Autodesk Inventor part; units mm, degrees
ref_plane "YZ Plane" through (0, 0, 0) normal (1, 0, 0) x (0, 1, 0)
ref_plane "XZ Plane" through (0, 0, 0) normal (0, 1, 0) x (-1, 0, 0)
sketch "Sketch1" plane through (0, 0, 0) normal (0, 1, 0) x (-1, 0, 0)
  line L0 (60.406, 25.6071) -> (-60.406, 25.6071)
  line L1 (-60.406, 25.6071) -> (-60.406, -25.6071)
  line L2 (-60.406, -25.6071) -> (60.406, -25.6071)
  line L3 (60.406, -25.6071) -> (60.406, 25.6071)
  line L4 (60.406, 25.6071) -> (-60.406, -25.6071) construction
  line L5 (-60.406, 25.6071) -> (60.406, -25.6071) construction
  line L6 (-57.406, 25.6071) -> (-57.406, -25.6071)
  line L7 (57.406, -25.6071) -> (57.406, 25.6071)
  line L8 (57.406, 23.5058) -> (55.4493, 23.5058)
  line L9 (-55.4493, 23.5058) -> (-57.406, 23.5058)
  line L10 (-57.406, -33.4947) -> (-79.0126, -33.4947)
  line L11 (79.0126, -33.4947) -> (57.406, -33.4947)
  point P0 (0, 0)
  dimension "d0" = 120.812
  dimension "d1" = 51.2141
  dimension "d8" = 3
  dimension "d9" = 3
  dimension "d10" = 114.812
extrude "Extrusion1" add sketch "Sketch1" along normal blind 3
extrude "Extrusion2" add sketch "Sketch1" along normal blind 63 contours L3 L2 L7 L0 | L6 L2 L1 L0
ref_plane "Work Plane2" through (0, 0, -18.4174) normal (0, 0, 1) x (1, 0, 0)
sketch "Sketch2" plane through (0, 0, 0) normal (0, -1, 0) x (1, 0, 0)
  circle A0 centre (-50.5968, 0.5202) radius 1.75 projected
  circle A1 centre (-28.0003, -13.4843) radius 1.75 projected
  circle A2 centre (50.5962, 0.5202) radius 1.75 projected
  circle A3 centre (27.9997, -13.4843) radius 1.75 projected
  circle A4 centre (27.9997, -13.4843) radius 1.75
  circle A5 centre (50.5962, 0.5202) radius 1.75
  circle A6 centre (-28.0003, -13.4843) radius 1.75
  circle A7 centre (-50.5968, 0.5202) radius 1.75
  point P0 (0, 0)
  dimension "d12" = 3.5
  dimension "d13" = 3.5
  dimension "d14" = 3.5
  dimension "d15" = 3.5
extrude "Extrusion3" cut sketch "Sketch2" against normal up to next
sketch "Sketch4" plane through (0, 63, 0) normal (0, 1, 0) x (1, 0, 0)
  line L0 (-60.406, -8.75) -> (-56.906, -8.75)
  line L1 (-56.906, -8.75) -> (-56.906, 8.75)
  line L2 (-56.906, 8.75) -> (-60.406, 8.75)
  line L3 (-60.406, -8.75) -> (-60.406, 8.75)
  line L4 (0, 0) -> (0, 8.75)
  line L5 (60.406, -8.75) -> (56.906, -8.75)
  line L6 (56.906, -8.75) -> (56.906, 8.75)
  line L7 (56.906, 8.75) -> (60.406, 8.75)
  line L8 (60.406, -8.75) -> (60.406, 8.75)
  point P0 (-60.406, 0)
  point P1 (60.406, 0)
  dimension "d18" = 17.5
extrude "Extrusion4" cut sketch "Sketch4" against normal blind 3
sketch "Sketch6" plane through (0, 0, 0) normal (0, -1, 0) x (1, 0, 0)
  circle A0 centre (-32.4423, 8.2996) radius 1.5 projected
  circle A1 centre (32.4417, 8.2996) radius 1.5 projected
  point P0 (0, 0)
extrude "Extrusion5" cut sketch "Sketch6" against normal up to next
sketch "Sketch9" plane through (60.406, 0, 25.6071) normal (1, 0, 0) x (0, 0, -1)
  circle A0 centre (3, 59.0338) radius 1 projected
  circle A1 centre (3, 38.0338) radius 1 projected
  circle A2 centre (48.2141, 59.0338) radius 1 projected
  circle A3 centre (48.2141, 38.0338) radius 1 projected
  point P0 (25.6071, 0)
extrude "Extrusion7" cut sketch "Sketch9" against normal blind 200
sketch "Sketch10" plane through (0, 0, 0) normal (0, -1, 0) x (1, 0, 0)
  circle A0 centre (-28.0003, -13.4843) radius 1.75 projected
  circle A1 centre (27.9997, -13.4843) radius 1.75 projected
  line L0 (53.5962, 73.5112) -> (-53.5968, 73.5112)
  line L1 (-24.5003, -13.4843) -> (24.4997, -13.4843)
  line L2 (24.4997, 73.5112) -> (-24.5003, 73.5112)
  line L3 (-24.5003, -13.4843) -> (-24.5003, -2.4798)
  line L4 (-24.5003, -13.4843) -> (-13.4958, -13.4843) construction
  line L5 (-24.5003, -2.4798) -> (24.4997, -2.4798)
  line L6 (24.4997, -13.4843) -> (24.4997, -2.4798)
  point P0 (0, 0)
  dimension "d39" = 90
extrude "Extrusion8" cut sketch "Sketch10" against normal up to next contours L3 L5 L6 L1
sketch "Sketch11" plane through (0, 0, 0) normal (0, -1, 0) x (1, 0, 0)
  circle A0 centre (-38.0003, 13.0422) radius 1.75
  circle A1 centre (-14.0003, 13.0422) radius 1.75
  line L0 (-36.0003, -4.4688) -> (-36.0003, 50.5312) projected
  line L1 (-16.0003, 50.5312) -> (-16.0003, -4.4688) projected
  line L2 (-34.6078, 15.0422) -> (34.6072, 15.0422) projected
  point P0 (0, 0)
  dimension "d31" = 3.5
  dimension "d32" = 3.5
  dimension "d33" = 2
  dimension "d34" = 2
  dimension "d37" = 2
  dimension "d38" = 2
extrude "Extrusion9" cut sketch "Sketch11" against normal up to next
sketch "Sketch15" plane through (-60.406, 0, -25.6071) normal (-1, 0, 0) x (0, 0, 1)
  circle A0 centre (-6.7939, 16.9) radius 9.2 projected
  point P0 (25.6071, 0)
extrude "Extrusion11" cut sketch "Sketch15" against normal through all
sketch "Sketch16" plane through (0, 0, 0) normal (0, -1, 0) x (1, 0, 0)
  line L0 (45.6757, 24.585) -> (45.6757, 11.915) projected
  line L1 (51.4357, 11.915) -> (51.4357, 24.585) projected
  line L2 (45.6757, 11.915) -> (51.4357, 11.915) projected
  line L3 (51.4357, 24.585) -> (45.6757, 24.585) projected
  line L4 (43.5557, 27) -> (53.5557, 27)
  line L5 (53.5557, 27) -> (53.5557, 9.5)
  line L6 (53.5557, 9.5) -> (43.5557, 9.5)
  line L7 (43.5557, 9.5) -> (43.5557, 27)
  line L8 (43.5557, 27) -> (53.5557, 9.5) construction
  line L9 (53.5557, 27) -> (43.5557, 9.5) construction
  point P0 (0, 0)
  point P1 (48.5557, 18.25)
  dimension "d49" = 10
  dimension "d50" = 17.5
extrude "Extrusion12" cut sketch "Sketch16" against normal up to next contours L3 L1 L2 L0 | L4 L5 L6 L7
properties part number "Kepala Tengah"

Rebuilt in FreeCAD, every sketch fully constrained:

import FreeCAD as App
import Part
import Sketcher

V = App.Vector
Q = App.Units.Quantity


def add_polygon(sketch, points):
    """Adds a closed chain of lines whose ends are joined by coincident constraints."""
    first, n = sketch.GeometryCount, len(points)
    for a, b in zip(points, points[1:] + points[:1]):
        sketch.addGeometry(Part.LineSegment(App.Vector(*a, 0), App.Vector(*b, 0)), False)
    for i in range(n):
        sketch.addConstraint(Sketcher.Constraint("Coincident", first + i, 2, first + (i + 1) % n, 1))

doc = App.newDocument("Part")
params = doc.addObject("Spreadsheet::Sheet", "Params")
for row, (alias, value) in enumerate([
    ("pad1_length", "3 mm"),
    ("sketch2_width", "3 mm"),
    ("pad2_length", "63 mm"),
    ("sketch3_diameter", "3.5 mm"),
    ("sketch4_height", "17.5 mm"),
    ("sketch4_width", "3.5 mm"),
    ("pocket2_length", "3 mm"),
    ("sketch5_diameter", "3 mm"),
    ("pocket3_length", "3 mm"),
    ("sketch6_diameter", "2 mm"),
    ("pocket4_length", "200 mm"),
    ("sketch7_width", "49 mm"),
    ("sketch8_diameter", "3.5 mm"),
    ("sketch9_diameter", "18.4 mm"),
    ("sketch10_width", "10 mm"),
    ("sketch10_height", "17.5 mm"),
], start=1):
    params.set(f"A{row}", alias)
    params.set(f"B{row}", "=" + value)
    params.setAlias(f"B{row}", alias)

body = doc.addObject("PartDesign::Body", "Body")

sketch1 = body.newObject("Sketcher::SketchObject", "Sketch")
sketch1.AttachmentSupport = (doc.getObject("XZ_Plane"), [""])
sketch1.MapMode = "FlatFace"
add_polygon(sketch1, [(-60, -26), (-60, 26), (60, 26), (60, -26)])
sketch1.addConstraint([
    Sketcher.Constraint("Vertical", 0),
    Sketcher.Constraint("Horizontal", 1),
    Sketcher.Constraint("Vertical", 2),
    Sketcher.Constraint("Horizontal", 3),
    Sketcher.Constraint("Symmetric", 0, 2, 2, 2, -1, 1),
    Sketcher.Constraint("DistanceX", 1, 1, 1, 2, Q("120.812 mm")),
    Sketcher.Constraint("DistanceY", 0, 1, 0, 2, Q("51.2142 mm")),
])
pad1 = body.newObject("PartDesign::Pad", "Pad")
pad1.Profile = sketch1
pad1.setExpression("Length", "Params.pad1_length")
pad1.Reversed = True

sketch2 = body.newObject("Sketcher::SketchObject", "Sketch001")
sketch2.AttachmentSupport = (doc.getObject("XZ_Plane"), [""])
sketch2.MapMode = "FlatFace"
add_polygon(sketch2, [(-60.4, -25.6), (-60.4, 25.6), (-57.4, 25.6), (-57.4, -25.6)])
add_polygon(sketch2, [(57.4, -25.6), (57.4, 25.6), (60.4, 25.6), (60.4, -25.6)])
sketch2.addConstraint([
    Sketcher.Constraint("Vertical", 0),
    Sketcher.Constraint("Horizontal", 1),
    Sketcher.Constraint("Vertical", 2),
    Sketcher.Constraint("Horizontal", 3),
    Sketcher.Constraint("Vertical", 4),
    Sketcher.Constraint("Horizontal", 5),
    Sketcher.Constraint("Vertical", 6),
    Sketcher.Constraint("Horizontal", 7),
    Sketcher.Constraint("Symmetric", 2, 2, 4, 2, -1, 1),
    Sketcher.Constraint("Symmetric", 0, 2, 6, 2, -1, 1),
    Sketcher.Constraint("Horizontal", 1, 2, 4, 2),
    Sketcher.Constraint("DistanceX", 1, 1, 1, 2, Q("3 mm")),
    Sketcher.Constraint("DistanceY", 0, 1, 0, 2, Q("51.2142 mm")),
    Sketcher.Constraint("DistanceX", 1, 2, 4, 2, Q("114.812 mm")),
])
sketch2.setExpression("Constraints[19]", "Params.sketch2_width")
pad2 = body.newObject("PartDesign::Pad", "Pad001")
pad2.Profile = sketch2
pad2.setExpression("Length", "Params.pad2_length")
pad2.Reversed = True

sketch3 = body.newObject("Sketcher::SketchObject", "Sketch002")
sketch3.AttachmentSupport = (doc.getObject("XZ_Plane"), [""])
sketch3.MapMode = "FlatFace"
sketch3.addGeometry([
    Part.Circle(V(-50.6, 0.5, 0), V(0, 0, 1), 1.8),
    Part.Circle(V(-28, -13.5, 0), V(0, 0, 1), 1.8),
    Part.Circle(V(50.6, 0.5, 0), V(0, 0, 1), 1.8),
    Part.Circle(V(28, -13.5, 0), V(0, 0, 1), 1.8),
], False)
sketch3.addConstraint([
    Sketcher.Constraint("Equal", 0, 1),
    Sketcher.Constraint("Equal", 1, 2),
    Sketcher.Constraint("Equal", 2, 3),
    Sketcher.Constraint("Horizontal", 0, 3, 2, 3),
    Sketcher.Constraint("Horizontal", 1, 3, 3, 3),
    Sketcher.Constraint("Diameter", 0, Q("3.5 mm")),
    Sketcher.Constraint("DistanceX", 1, 3, 3, 3, Q("56 mm")),
    Sketcher.Constraint("DistanceX", 0, 3, 2, 3, Q("101.193 mm")),
    Sketcher.Constraint("DistanceX", 0, 3, -1, 1, Q("50.5968 mm")),
    Sketcher.Constraint("DistanceY", -1, 1, 0, 3, Q("0.5202 mm")),
    Sketcher.Constraint("DistanceX", 1, 3, -1, 1, Q("28.0003 mm")),
    Sketcher.Constraint("DistanceY", 1, 3, -1, 1, Q("13.4843 mm")),
])
sketch3.setExpression("Constraints[5]", "Params.sketch3_diameter")
pocket1 = body.newObject("PartDesign::Pocket", "Pocket")
pocket1.Profile = sketch3
pocket1.Type = "UpToFirst"

sketch4 = body.newObject("Sketcher::SketchObject", "Sketch003")
sketch4.AttachmentSupport = (doc.getObject("XZ_Plane"), [""])
sketch4.MapMode = "FlatFace"
sketch4.AttachmentOffset = App.Placement(V(0, 0, -63), App.Rotation())
add_polygon(sketch4, [(-60.4, -8.8), (-60.4, 8.8), (-56.9, 8.8), (-56.9, -8.8)])
add_polygon(sketch4, [(56.9, 8.8), (60.4, 8.8), (60.4, -8.8), (56.9, -8.8)])
sketch4.addConstraint([
    Sketcher.Constraint("Vertical", 0),
    Sketcher.Constraint("Horizontal", 1),
    Sketcher.Constraint("Vertical", 2),
    Sketcher.Constraint("Horizontal", 3),
    Sketcher.Constraint("Horizontal", 4),
    Sketcher.Constraint("Vertical", 5),
    Sketcher.Constraint("Horizontal", 6),
    Sketcher.Constraint("Vertical", 7),
    Sketcher.Constraint("Symmetric", 3, 2, 4, 2, -1, 1),
    Sketcher.Constraint("Symmetric", 1, 2, 6, 2, -1, 1),
    Sketcher.Constraint("Horizontal", 1, 2, 4, 2),
    Sketcher.Constraint("DistanceY", 0, 1, 0, 2, Q("17.5 mm")),
    Sketcher.Constraint("DistanceX", 1, 1, 1, 2, Q("3.5 mm")),
    Sketcher.Constraint("DistanceX", 0, 2, -1, 1, Q("60.406 mm")),
])
sketch4.setExpression("Constraints[19]", "Params.sketch4_height")
sketch4.setExpression("Constraints[20]", "Params.sketch4_width")
pocket2 = body.newObject("PartDesign::Pocket", "Pocket001")
pocket2.Profile = sketch4
pocket2.setExpression("Length", "Params.pocket2_length")
pocket2.Reversed = True

sketch5 = body.newObject("Sketcher::SketchObject", "Sketch004")
sketch5.AttachmentSupport = (doc.getObject("XZ_Plane"), [""])
sketch5.MapMode = "FlatFace"
sketch5.addGeometry([
    Part.Circle(V(-32.4, 8.3, 0), V(0, 0, 1), 1.5),
    Part.Circle(V(32.4, 8.3, 0), V(0, 0, 1), 1.5),
], False)
sketch5.addConstraint([
    Sketcher.Constraint("Equal", 0, 1),
    Sketcher.Constraint("Horizontal", 0, 3, 1, 3),
    Sketcher.Constraint("Diameter", 0, Q("3 mm")),
    Sketcher.Constraint("DistanceX", 0, 3, 1, 3, Q("64.884 mm")),
    Sketcher.Constraint("DistanceX", 0, 3, -1, 1, Q("32.4423 mm")),
    Sketcher.Constraint("DistanceY", -1, 1, 0, 3, Q("8.2996 mm")),
])
sketch5.setExpression("Constraints[2]", "Params.sketch5_diameter")
pocket3 = body.newObject("PartDesign::Pocket", "Pocket002")
pocket3.Profile = sketch5
pocket3.setExpression("Length", "Params.pocket3_length")

sketch6 = body.newObject("Sketcher::SketchObject", "Sketch005")
sketch6.AttachmentSupport = (doc.getObject("YZ_Plane"), [""])
sketch6.MapMode = "FlatFace"
sketch6.AttachmentOffset = App.Placement(V(0, 0, 60.406), App.Rotation())
sketch6.addGeometry([
    Part.Circle(V(59, 22.6, 0), V(0, 0, 1), 1),
    Part.Circle(V(38, 22.6, 0), V(0, 0, 1), 1),
    Part.Circle(V(59, -22.6, 0), V(0, 0, 1), 1),
    Part.Circle(V(38, -22.6, 0), V(0, 0, 1), 1),
], False)
sketch6.addConstraint([
    Sketcher.Constraint("Equal", 0, 1),
    Sketcher.Constraint("Equal", 1, 2),
    Sketcher.Constraint("Equal", 2, 3),
    Sketcher.Constraint("Symmetric", 0, 3, 2, 3, -1),
    Sketcher.Constraint("Symmetric", 1, 3, 3, 3, -1),
    Sketcher.Constraint("Horizontal", 0, 3, 1, 3),
    Sketcher.Constraint("Diameter", 0, Q("2 mm")),
    Sketcher.Constraint("DistanceX", 1, 3, 0, 3, Q("21 mm")),
    Sketcher.Constraint("DistanceY", -1, 1, 0, 3, Q("22.607 mm")),
    Sketcher.Constraint("DistanceX", -1, 1, 0, 3, Q("59.0338 mm")),
])
sketch6.setExpression("Constraints[6]", "Params.sketch6_diameter")
pocket4 = body.newObject("PartDesign::Pocket", "Pocket003")
pocket4.Profile = sketch6
pocket4.setExpression("Length", "Params.pocket4_length")

sketch7 = body.newObject("Sketcher::SketchObject", "Sketch006")
sketch7.AttachmentSupport = (doc.getObject("XZ_Plane"), [""])
sketch7.MapMode = "FlatFace"
add_polygon(sketch7, [(-25, -2), (-25, -13), (24, -13), (24, -2)])
sketch7.addConstraint([
    Sketcher.Constraint("Vertical", 0),
    Sketcher.Constraint("Horizontal", 1),
    Sketcher.Constraint("Vertical", 2),
    Sketcher.Constraint("Horizontal", 3),
    Sketcher.Constraint("DistanceX", 1, 1, 1, 2, Q("49 mm")),
    Sketcher.Constraint("DistanceY", 0, 2, 0, 1, Q("11.0045 mm")),
    Sketcher.Constraint("DistanceX", 0, 2, -1, 1, Q("24.5003 mm")),
    Sketcher.Constraint("DistanceY", 0, 2, -1, 1, Q("13.4843 mm")),
])
sketch7.setExpression("Constraints[8]", "Params.sketch7_width")
pocket5 = body.newObject("PartDesign::Pocket", "Pocket004")
pocket5.Profile = sketch7
pocket5.Type = "UpToFirst"

sketch8 = body.newObject("Sketcher::SketchObject", "Sketch007")
sketch8.AttachmentSupport = (doc.getObject("XZ_Plane"), [""])
sketch8.MapMode = "FlatFace"
sketch8.addGeometry([
    Part.Circle(V(-38, 13, 0), V(0, 0, 1), 1.8),
    Part.Circle(V(-14, 13, 0), V(0, 0, 1), 1.8),
], False)
sketch8.addConstraint([
    Sketcher.Constraint("Equal", 0, 1),
    Sketcher.Constraint("Horizontal", 0, 3, 1, 3),
    Sketcher.Constraint("Diameter", 0, Q("3.5 mm")),
    Sketcher.Constraint("DistanceX", 0, 3, 1, 3, Q("24 mm")),
    Sketcher.Constraint("DistanceX", 0, 3, -1, 1, Q("38.0003 mm")),
    Sketcher.Constraint("DistanceY", -1, 1, 0, 3, Q("13.0422 mm")),
])
sketch8.setExpression("Constraints[2]", "Params.sketch8_diameter")
pocket6 = body.newObject("PartDesign::Pocket", "Pocket005")
pocket6.Profile = sketch8
pocket6.Type = "UpToFirst"

sketch9 = body.newObject("Sketcher::SketchObject", "Sketch008")
sketch9.AttachmentSupport = (doc.getObject("YZ_Plane"), [""])
sketch9.MapMode = "FlatFace"
sketch9.AttachmentOffset = App.Placement(V(0, 0, -60.406), App.Rotation())
sketch9.addGeometry(Part.Circle(V(17, -32, 0), V(0, 0, 1), 9), False)
sketch9.addConstraint([
    Sketcher.Constraint("Diameter", 0, Q("18.4 mm")),
    Sketcher.Constraint("DistanceX", -1, 1, 0, 3, Q("16.9 mm")),
    Sketcher.Constraint("DistanceY", 0, 3, -1, 1, Q("32.401 mm")),
])
sketch9.setExpression("Constraints[0]", "Params.sketch9_diameter")
pocket7 = body.newObject("PartDesign::Pocket", "Pocket006")
pocket7.Profile = sketch9
pocket7.Type = "ThroughAll"
pocket7.Reversed = True

sketch10 = body.newObject("Sketcher::SketchObject", "Sketch009")
sketch10.AttachmentSupport = (doc.getObject("XZ_Plane"), [""])
sketch10.MapMode = "FlatFace"
add_polygon(sketch10, [(54, 27), (44, 27), (44, 10), (54, 10)])
sketch10.addConstraint([
    Sketcher.Constraint("Horizontal", 0),
    Sketcher.Constraint("Vertical", 1),
    Sketcher.Constraint("Horizontal", 2),
    Sketcher.Constraint("Vertical", 3),
    Sketcher.Constraint("DistanceX", 0, 2, 0, 1, Q("10 mm")),
    Sketcher.Constraint("DistanceY", 1, 2, 1, 1, Q("17.5 mm")),
    Sketcher.Constraint("DistanceY", -1, 1, 0, 2, Q("27 mm")),
    Sketcher.Constraint("DistanceX", -1, 1, 0, 2, Q("43.5557 mm")),
])
sketch10.setExpression("Constraints[8]", "Params.sketch10_width")
sketch10.setExpression("Constraints[9]", "Params.sketch10_height")
pocket8 = body.newObject("PartDesign::Pocket", "Pocket007")
pocket8.Profile = sketch10
pocket8.Type = "UpToFirst"

doc.recompute()
